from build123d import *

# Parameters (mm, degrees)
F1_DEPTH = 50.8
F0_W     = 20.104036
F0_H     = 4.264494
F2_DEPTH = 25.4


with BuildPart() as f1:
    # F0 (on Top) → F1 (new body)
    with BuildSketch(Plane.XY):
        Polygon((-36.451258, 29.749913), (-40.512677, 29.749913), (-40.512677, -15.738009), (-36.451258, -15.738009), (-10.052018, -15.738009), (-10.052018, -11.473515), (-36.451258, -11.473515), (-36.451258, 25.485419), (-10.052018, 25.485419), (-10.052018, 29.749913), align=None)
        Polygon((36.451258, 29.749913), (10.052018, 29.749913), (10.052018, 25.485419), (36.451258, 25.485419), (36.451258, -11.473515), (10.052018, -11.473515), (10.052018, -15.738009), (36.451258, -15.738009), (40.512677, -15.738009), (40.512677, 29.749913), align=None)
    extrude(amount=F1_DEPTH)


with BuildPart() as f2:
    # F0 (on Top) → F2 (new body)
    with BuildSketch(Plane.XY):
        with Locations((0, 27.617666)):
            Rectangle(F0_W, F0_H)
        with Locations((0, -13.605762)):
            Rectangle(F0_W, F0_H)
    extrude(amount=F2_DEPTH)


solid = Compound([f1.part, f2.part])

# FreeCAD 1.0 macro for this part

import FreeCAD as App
import Part
import Sketcher
from FreeCAD import Vector
Q = App.Units.Quantity


def add_polygon(sketch, points):
    """Adds a closed chain of lines whose ends are joined by coincident constraints."""
    first, n = sketch.GeometryCount, len(points)
    for a, b in zip(points, points[1:] + points[:1]):
        sketch.addGeometry(Part.LineSegment(App.Vector(*a, 0), App.Vector(*b, 0)), False)
    for i in range(n):
        sketch.addConstraint(Sketcher.Constraint("Coincident", first + i, 2, first + (i + 1) % n, 1))

doc = App.newDocument("Part")
body = doc.addObject("PartDesign::Body", "Body")
body.AllowCompound = True

# Sketch on XY plane
sketch1 = body.newObject("Sketcher::SketchObject", "Sketch")
sketch1.AttachmentSupport = (doc.getObject("XY_Plane"), [""])
sketch1.MapMode = "FlatFace"
add_polygon(sketch1, [(-40.512677, 29.749913), (-40.512677, -15.738009), (-10.052018, -15.738009), (-10.052018, -11.473515), (-36.451258, -11.473515), (-36.451258, 25.485419), (-10.052018, 25.485419), (-10.052018, 29.749913)])  # lines 0-7
add_polygon(sketch1, [(10.052018, 29.749913), (10.052018, 25.485419), (36.451258, 25.485419), (36.451258, -11.473515), (10.052018, -11.473515), (10.052018, -15.738009), (40.512677, -15.738009), (40.512677, 29.749913)])  # lines 8-15
sketch1.addConstraint(Sketcher.Constraint("Vertical", 0))
sketch1.addConstraint(Sketcher.Constraint("Horizontal", 1))
sketch1.addConstraint(Sketcher.Constraint("Vertical", 2))
sketch1.addConstraint(Sketcher.Constraint("Horizontal", 3))
sketch1.addConstraint(Sketcher.Constraint("Vertical", 4))
sketch1.addConstraint(Sketcher.Constraint("Horizontal", 5))
sketch1.addConstraint(Sketcher.Constraint("Vertical", 6))
sketch1.addConstraint(Sketcher.Constraint("Horizontal", 7))
sketch1.addConstraint(Sketcher.Constraint("Vertical", 8))
sketch1.addConstraint(Sketcher.Constraint("Horizontal", 9))
sketch1.addConstraint(Sketcher.Constraint("Vertical", 10))
sketch1.addConstraint(Sketcher.Constraint("Horizontal", 11))
sketch1.addConstraint(Sketcher.Constraint("Vertical", 12))
sketch1.addConstraint(Sketcher.Constraint("Horizontal", 13))
sketch1.addConstraint(Sketcher.Constraint("Vertical", 14))
sketch1.addConstraint(Sketcher.Constraint("Horizontal", 15))
sketch1.addConstraint(Sketcher.Constraint("Symmetric", 5, 2, 8, 2, -2))
sketch1.addConstraint(Sketcher.Constraint("Symmetric", 3, 2, 10, 2, -2))
sketch1.addConstraint(Sketcher.Constraint("Symmetric", 1, 2, 12, 2, -2))
sketch1.addConstraint(Sketcher.Constraint("Symmetric", 7, 2, 14, 2, -2))
sketch1.addConstraint(Sketcher.Constraint("Vertical", 2, 2, 5, 2))
sketch1.addConstraint(Sketcher.Constraint("Equal", 2, 6))
sketch1.addConstraint(Sketcher.Constraint("DistanceX", 1, 1, 1, 2, 30.460659))
sketch1.addConstraint(Sketcher.Constraint("DistanceX", 3, 2, 3, 1, 26.39924))
sketch1.addConstraint(Sketcher.Constraint("DistanceY", 0, 2, 0, 1, 45.487922))
sketch1.addConstraint(Sketcher.Constraint("DistanceY", 2, 1, 2, 2, 4.264494))
sketch1.addConstraint(Sketcher.Constraint("DistanceY", 0, 2, -1, 1, 15.738009))
sketch1.addConstraint(Sketcher.Constraint("DistanceX", 3, 2, -1, 1, 36.451258))
pad1 = body.newObject("PartDesign::Pad", "Pad")
pad1.Profile = sketch1
pad1.Length = Q("2 in")
body2 = doc.addObject("PartDesign::Body", "Body001")
body2.AllowCompound = True

# Sketch on XY plane
sketch2 = body2.newObject("Sketcher::SketchObject", "Sketch001")
sketch2.AttachmentSupport = (doc.getObject("XY_Plane001"), [""])
sketch2.MapMode = "FlatFace"
add_polygon(sketch2, [(-10.052018, 29.749913), (-10.052018, 25.485419), (10.052018, 25.485419), (10.052018, 29.749913)])  # lines 0-3
add_polygon(sketch2, [(-10.052018, -11.473515), (-10.052018, -15.738009), (10.052018, -15.738009), (10.052018, -11.473515)])  # lines 4-7
sketch2.addConstraint(Sketcher.Constraint("Vertical", 0))
sketch2.addConstraint(Sketcher.Constraint("Horizontal", 1))
sketch2.addConstraint(Sketcher.Constraint("Vertical", 2))
sketch2.addConstraint(Sketcher.Constraint("Horizontal", 3))
sketch2.addConstraint(Sketcher.Constraint("Vertical", 4))
sketch2.addConstraint(Sketcher.Constraint("Horizontal", 5))
sketch2.addConstraint(Sketcher.Constraint("Vertical", 6))
sketch2.addConstraint(Sketcher.Constraint("Horizontal", 7))
sketch2.addConstraint(Sketcher.Constraint("Vertical", 3, 2, 4, 2))
sketch2.addConstraint(Sketcher.Constraint("Vertical", 2, 2, 5, 2))
sketch2.addConstraint(Sketcher.Constraint("Equal", 2, 4))
sketch2.addConstraint(Sketcher.Constraint("DistanceX", 1, 1, 1, 2, 20.104036))
sketch2.addConstraint(Sketcher.Constraint("DistanceY", 0, 2, 0, 1, 4.264494))
sketch2.addConstraint(Sketcher.Constraint("DistanceY", -1, 1, 0, 2, 25.485419))
sketch2.addConstraint(Sketcher.Constraint("DistanceY", 4, 2, -1, 1, 15.738009))
sketch2.addConstraint(Sketcher.Constraint("DistanceX", 0, 2, -1, 1, 10.052018))
pad2 = body2.newObject("PartDesign::Pad", "Pad001")
pad2.Profile = sketch2
pad2.Length = Q("1 in")

doc.recompute()
